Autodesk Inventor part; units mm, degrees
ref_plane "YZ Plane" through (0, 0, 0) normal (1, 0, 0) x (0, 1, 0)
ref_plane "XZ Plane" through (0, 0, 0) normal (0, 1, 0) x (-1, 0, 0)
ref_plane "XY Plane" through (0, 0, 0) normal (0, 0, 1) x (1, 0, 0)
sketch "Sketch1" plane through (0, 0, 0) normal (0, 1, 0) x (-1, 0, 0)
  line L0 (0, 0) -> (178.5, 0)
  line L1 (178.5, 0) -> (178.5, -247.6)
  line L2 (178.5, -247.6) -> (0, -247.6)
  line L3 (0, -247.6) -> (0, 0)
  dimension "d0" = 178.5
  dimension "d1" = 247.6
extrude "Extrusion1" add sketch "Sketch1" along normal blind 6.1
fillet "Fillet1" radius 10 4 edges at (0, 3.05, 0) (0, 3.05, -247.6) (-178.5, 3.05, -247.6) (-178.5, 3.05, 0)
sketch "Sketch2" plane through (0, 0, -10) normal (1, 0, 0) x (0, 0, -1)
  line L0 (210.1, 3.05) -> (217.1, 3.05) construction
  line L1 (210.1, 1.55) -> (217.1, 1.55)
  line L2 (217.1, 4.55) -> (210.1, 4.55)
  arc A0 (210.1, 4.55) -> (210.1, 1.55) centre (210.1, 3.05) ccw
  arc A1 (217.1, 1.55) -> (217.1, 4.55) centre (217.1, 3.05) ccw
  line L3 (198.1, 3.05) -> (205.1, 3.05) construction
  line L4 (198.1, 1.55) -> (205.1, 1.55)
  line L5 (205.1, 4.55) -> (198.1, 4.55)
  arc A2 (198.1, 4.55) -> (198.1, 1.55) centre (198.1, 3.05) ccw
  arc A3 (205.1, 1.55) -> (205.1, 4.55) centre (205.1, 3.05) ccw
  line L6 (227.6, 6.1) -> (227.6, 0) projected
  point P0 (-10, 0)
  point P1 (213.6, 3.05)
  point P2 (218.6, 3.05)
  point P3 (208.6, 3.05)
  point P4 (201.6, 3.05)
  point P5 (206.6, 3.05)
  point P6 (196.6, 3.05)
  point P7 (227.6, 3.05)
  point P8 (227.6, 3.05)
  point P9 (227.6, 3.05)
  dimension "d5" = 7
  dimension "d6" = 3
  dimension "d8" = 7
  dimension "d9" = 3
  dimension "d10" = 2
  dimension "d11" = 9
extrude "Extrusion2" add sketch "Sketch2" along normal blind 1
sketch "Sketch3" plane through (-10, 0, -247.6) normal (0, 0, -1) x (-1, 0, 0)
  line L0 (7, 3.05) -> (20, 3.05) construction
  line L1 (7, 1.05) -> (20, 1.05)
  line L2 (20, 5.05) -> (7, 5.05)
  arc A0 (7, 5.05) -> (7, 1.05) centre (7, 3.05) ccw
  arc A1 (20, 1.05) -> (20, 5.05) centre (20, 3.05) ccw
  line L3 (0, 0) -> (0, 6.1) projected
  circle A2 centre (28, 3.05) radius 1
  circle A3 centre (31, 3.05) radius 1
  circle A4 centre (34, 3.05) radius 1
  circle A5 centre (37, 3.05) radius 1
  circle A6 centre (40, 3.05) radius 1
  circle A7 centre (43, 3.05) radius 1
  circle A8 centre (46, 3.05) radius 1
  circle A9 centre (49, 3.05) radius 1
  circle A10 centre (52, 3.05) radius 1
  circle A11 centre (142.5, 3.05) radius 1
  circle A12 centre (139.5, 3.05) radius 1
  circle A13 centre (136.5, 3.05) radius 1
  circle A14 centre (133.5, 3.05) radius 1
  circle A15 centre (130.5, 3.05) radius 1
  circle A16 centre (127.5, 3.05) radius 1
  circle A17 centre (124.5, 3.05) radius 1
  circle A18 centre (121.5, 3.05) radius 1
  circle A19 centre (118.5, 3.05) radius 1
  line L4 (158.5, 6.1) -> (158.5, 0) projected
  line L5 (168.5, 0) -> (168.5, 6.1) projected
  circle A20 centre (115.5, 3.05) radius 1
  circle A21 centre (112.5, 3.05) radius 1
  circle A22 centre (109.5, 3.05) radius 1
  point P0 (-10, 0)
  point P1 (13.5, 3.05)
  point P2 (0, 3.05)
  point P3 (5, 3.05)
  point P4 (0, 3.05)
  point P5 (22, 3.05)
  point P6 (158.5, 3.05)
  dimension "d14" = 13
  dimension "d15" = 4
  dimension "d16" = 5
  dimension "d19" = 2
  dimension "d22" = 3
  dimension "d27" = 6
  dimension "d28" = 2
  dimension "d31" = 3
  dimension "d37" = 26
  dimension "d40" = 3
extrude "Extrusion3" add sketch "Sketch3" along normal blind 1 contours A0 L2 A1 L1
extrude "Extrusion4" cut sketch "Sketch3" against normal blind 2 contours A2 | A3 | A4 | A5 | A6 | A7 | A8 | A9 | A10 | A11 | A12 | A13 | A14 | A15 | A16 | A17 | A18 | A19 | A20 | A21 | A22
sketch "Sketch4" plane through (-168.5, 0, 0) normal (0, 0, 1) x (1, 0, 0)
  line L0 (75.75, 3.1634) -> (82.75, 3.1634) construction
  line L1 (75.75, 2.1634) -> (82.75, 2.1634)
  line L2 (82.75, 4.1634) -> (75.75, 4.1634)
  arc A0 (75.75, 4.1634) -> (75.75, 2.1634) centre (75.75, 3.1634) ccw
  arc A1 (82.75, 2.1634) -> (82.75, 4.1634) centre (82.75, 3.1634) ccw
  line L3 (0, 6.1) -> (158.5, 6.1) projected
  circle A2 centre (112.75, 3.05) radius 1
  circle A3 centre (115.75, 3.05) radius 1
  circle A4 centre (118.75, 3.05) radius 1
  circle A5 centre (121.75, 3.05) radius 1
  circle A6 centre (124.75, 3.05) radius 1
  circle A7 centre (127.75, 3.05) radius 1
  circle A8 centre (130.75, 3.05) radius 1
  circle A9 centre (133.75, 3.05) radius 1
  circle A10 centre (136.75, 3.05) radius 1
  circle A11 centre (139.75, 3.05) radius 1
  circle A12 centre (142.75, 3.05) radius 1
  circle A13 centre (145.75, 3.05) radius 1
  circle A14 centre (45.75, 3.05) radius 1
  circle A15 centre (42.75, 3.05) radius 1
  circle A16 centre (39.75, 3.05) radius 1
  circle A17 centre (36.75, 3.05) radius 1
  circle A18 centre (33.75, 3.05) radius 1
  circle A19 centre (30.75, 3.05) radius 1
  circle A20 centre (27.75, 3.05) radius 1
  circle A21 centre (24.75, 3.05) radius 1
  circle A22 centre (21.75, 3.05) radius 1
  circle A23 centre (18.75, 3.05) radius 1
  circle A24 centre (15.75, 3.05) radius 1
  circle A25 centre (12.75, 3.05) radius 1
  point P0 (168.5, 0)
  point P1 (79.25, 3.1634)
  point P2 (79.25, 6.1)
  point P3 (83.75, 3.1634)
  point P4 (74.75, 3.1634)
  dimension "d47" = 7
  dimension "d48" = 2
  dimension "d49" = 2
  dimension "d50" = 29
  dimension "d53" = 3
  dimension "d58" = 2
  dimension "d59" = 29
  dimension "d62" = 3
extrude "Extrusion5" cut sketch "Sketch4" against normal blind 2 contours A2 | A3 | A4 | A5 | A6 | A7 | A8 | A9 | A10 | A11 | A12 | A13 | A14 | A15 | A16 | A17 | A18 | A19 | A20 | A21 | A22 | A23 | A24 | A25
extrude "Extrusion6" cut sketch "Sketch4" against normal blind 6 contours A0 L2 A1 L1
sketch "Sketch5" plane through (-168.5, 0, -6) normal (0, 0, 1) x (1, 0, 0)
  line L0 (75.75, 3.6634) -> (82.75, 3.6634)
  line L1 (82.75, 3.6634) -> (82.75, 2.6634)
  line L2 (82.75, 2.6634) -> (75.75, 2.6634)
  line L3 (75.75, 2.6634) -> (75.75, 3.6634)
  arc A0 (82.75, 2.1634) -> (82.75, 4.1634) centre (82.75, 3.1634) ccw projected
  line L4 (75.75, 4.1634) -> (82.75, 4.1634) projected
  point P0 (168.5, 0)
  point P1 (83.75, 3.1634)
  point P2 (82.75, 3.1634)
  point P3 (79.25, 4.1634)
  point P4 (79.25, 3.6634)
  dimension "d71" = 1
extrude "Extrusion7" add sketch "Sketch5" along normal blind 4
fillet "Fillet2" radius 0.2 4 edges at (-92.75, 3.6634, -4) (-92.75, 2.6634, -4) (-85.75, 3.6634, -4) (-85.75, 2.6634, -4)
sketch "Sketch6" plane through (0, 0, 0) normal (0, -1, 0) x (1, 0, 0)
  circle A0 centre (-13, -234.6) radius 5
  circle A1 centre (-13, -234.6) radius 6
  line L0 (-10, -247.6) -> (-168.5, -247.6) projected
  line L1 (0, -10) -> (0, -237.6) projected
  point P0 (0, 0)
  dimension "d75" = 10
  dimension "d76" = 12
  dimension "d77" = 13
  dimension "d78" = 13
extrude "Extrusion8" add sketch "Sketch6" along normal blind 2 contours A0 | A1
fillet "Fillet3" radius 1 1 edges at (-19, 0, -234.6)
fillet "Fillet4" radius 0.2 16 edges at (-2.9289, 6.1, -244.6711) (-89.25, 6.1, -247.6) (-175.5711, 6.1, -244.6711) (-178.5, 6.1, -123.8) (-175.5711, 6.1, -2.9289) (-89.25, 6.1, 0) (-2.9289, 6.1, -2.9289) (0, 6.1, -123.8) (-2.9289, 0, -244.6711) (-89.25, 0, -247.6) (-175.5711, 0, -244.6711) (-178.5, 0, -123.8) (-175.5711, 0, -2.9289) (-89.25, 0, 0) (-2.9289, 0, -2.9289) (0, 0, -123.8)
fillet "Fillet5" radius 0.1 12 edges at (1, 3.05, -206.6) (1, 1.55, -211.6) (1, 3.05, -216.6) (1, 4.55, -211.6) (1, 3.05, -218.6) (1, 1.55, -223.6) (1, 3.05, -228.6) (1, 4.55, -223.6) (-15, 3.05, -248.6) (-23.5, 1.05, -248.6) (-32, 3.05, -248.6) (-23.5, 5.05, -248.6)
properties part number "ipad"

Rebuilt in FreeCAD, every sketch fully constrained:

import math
import FreeCAD as App
import Part
import Sketcher
Q = App.Units.Quantity


def edges_at(feature, points):
    """Names of the edges that pass closest to the given points."""
    edges = feature.Shape.Edges
    near = lambda p: min(range(len(edges)), key=lambda i: edges[i].distToShape(Part.Vertex(*p))[0])
    return sorted({f"Edge{near(p) + 1}" for p in points})


def add_polygon(sketch, points):
    """Adds a closed chain of lines whose ends are joined by coincident constraints."""
    first, n = sketch.GeometryCount, len(points)
    for a, b in zip(points, points[1:] + points[:1]):
        sketch.addGeometry(Part.LineSegment(App.Vector(*a, 0), App.Vector(*b, 0)), False)
    for i in range(n):
        sketch.addConstraint(Sketcher.Constraint("Coincident", first + i, 2, first + (i + 1) % n, 1))

doc = App.newDocument("Part")
params = doc.addObject("Spreadsheet::Sheet", "Params")
for row, (alias, value) in enumerate([
    ("sketch1_width", "178.5 mm"),
    ("sketch1_height", "247.6 mm"),
    ("pad1_length", "6.1 mm"),
    ("fillet_radius", "10 mm"),
    ("sketch2_radius", "1.5 mm"),
    ("sketch2_height", "7 mm"),
    ("pad2_length", "1 mm"),
    ("sketch3_radius", "2 mm"),
    ("sketch3_width", "13 mm"),
    ("pad3_length", "1 mm"),
    ("sketch4_diameter", "2 mm"),
    ("pocket1_length", "2 mm"),
    ("sketch5_diameter", "2 mm"),
    ("pocket2_length", "2 mm"),
    ("sketch6_radius", "1 mm"),
    ("sketch6_width", "7 mm"),
    ("pocket3_length", "6 mm"),
    ("sketch7_height", "1 mm"),
    ("sketch7_width", "7 mm"),
    ("pad4_length", "4 mm"),
    ("fillet2_radius", "0.2 mm"),
    ("sketch8_diameter", "12 mm"),
    ("pad5_length", "2 mm"),
    ("fillet3_radius", "1 mm"),
    ("fillet4_radius", "0.2 mm"),
    ("fillet5_radius", "0.1 mm"),
], start=1):
    params.set(f"A{row}", alias)
    params.set(f"B{row}", "=" + value)
    params.setAlias(f"B{row}", alias)

body = doc.addObject("PartDesign::Body", "Body")

# Sketch on XZ plane
sketch1 = doc.addObject("Sketcher::SketchObject", "Sketch")
body.addObject(sketch1)
sketch1.AttachmentSupport = (doc.XZ_Plane, [""])
sketch1.MapMode = "FlatFace"
add_polygon(sketch1, [(-178.5, 0), (0, 0), (0, -247.6), (-178.5, -247.6)])  # lines 0-3
sketch1.addConstraint(Sketcher.Constraint("Horizontal", 0))
sketch1.addConstraint(Sketcher.Constraint("Vertical", 1))
sketch1.addConstraint(Sketcher.Constraint("Horizontal", 2))
sketch1.addConstraint(Sketcher.Constraint("Vertical", 3))
sketch1.addConstraint(Sketcher.Constraint("Coincident", 0, 2, -1, 1))
sketch1.addConstraint(Sketcher.Constraint("DistanceX", 0, 1, 0, 2, Q("178.5 mm")))
sketch1.addConstraint(Sketcher.Constraint("DistanceY", 1, 2, 1, 1, Q("247.6 mm")))
sketch1.setExpression("Constraints[9]", "Params.sketch1_width")
sketch1.setExpression("Constraints[10]", "Params.sketch1_height")
pad1 = doc.addObject("PartDesign::Pad", "Pad")
body.addObject(pad1)
pad1.Profile = sketch1
pad1.setExpression("Length", "Params.pad1_length")
pad1.Reversed = True
doc.recompute()

fillet = doc.addObject("PartDesign::Fillet", "Fillet")
body.addObject(fillet)
fillet.Base = (pad1, edges_at(pad1, [
    (0, 3.05, 0),
    (0, 3.05, -247.6),
    (-178.5, 3.05, -247.6),
    (-178.5, 3.05, 0),
]))
fillet.setExpression("Radius", "Params.fillet_radius")

# Sketch on YZ plane
sketch2 = doc.addObject("Sketcher::SketchObject", "Sketch001")
body.addObject(sketch2)
sketch2.AttachmentSupport = (doc.YZ_Plane, [""])
sketch2.MapMode = "FlatFace"
sketch2.addGeometry(Part.ArcOfCircle(Part.Circle(App.Vector(3.05, -220.1, 0), App.Vector(0, 0, 1), 1.5), math.radians(0), math.radians(180)), False)
sketch2.addGeometry(Part.LineSegment(App.Vector(1.55, -220.1, 0), App.Vector(1.55, -227.1, 0)), False)
sketch2.addGeometry(Part.ArcOfCircle(Part.Circle(App.Vector(3.05, -227.1, 0), App.Vector(0, 0, 1), 1.5), math.radians(180), math.radians(360)), False)
sketch2.addGeometry(Part.LineSegment(App.Vector(4.55, -227.1, 0), App.Vector(4.55, -220.1, 0)), False)
sketch2.addGeometry(Part.ArcOfCircle(Part.Circle(App.Vector(3.05, -208.1, 0), App.Vector(0, 0, 1), 1.5), math.radians(0), math.radians(180)), False)
sketch2.addGeometry(Part.LineSegment(App.Vector(1.55, -208.1, 0), App.Vector(1.55, -215.1, 0)), False)
sketch2.addGeometry(Part.ArcOfCircle(Part.Circle(App.Vector(3.05, -215.1, 0), App.Vector(0, 0, 1), 1.5), math.radians(180), math.radians(360)), False)
sketch2.addGeometry(Part.LineSegment(App.Vector(4.55, -215.1, 0), App.Vector(4.55, -208.1, 0)), False)
sketch2.addConstraint(Sketcher.Constraint("Tangent", 0, 2, 1, 1))
sketch2.addConstraint(Sketcher.Constraint("Tangent", 1, 2, 2, 1))
sketch2.addConstraint(Sketcher.Constraint("Tangent", 2, 2, 3, 1))
sketch2.addConstraint(Sketcher.Constraint("Tangent", 3, 2, 0, 1))
sketch2.addConstraint(Sketcher.Constraint("Tangent", 4, 2, 5, 1))
sketch2.addConstraint(Sketcher.Constraint("Tangent", 5, 2, 6, 1))
sketch2.addConstraint(Sketcher.Constraint("Tangent", 6, 2, 7, 1))
sketch2.addConstraint(Sketcher.Constraint("Tangent", 7, 2, 4, 1))
sketch2.addConstraint(Sketcher.Constraint("Vertical", 1))
sketch2.addConstraint(Sketcher.Constraint("Vertical", 3))
sketch2.addConstraint(Sketcher.Constraint("Vertical", 5))
sketch2.addConstraint(Sketcher.Constraint("Vertical", 7))
sketch2.addConstraint(Sketcher.Constraint("Equal", 2, 4))
sketch2.addConstraint(Sketcher.Constraint("Vertical", 2, 3, 4, 3))
sketch2.addConstraint(Sketcher.Constraint("Equal", 3, 5))
sketch2.addConstraint(Sketcher.Constraint("Radius", 0, Q("1.5 mm")))
sketch2.addConstraint(Sketcher.Constraint("DistanceY", 1, 2, 1, 1, Q("7 mm")))
sketch2.addConstraint(Sketcher.Constraint("DistanceY", 0, 3, 4, 3, Q("12 mm")))
sketch2.addConstraint(Sketcher.Constraint("DistanceY", 0, 3, -1, 1, Q("220.1 mm")))
sketch2.addConstraint(Sketcher.Constraint("DistanceX", -1, 1, 0, 3, Q("3.05 mm")))
sketch2.setExpression("Constraints[15]", "Params.sketch2_radius")
sketch2.setExpression("Constraints[16]", "Params.sketch2_height")
pad2 = doc.addObject("PartDesign::Pad", "Pad001")
body.addObject(pad2)
pad2.Profile = sketch2
pad2.setExpression("Length", "Params.pad2_length")

# Sketch on XY plane
sketch3 = doc.addObject("Sketcher::SketchObject", "Sketch002")
body.addObject(sketch3)
sketch3.AttachmentSupport = (doc.XY_Plane, [""])
sketch3.MapMode = "FlatFace"
sketch3.AttachmentOffset = App.Placement(App.Vector(0, 0, -247.6), App.Rotation())
sketch3.addGeometry(Part.ArcOfCircle(Part.Circle(App.Vector(-17, 3.05, 0), App.Vector(0, 0, 1), 2), math.radians(-90), math.radians(90)), False)
sketch3.addGeometry(Part.LineSegment(App.Vector(-17, 1.05, 0), App.Vector(-30, 1.05, 0)), False)
sketch3.addGeometry(Part.ArcOfCircle(Part.Circle(App.Vector(-30, 3.05, 0), App.Vector(0, 0, 1), 2), math.radians(90), math.radians(270)), False)
sketch3.addGeometry(Part.LineSegment(App.Vector(-30, 5.05, 0), App.Vector(-17, 5.05, 0)), False)
sketch3.addConstraint(Sketcher.Constraint("Tangent", 0, 1, 1, 1))
sketch3.addConstraint(Sketcher.Constraint("Tangent", 1, 2, 2, 2))
sketch3.addConstraint(Sketcher.Constraint("Tangent", 2, 1, 3, 1))
sketch3.addConstraint(Sketcher.Constraint("Tangent", 3, 2, 0, 2))
sketch3.addConstraint(Sketcher.Constraint("Horizontal", 1))
sketch3.addConstraint(Sketcher.Constraint("Horizontal", 3))
sketch3.addConstraint(Sketcher.Constraint("Radius", 0, Q("2 mm")))
sketch3.addConstraint(Sketcher.Constraint("DistanceX", 1, 2, 1, 1, Q("13 mm")))
sketch3.addConstraint(Sketcher.Constraint("DistanceX", 0, 3, -1, 1, Q("17 mm")))
sketch3.addConstraint(Sketcher.Constraint("DistanceY", -1, 1, 0, 3, Q("3.05 mm")))
sketch3.setExpression("Constraints[6]", "Params.sketch3_radius")
sketch3.setExpression("Constraints[7]", "Params.sketch3_width")
pad3 = doc.addObject("PartDesign::Pad", "Pad002")
body.addObject(pad3)
pad3.Profile = sketch3
pad3.setExpression("Length", "Params.pad3_length")
pad3.Reversed = True

# Sketch on XY plane
sketch4 = doc.addObject("Sketcher::SketchObject", "Sketch003")
body.addObject(sketch4)
sketch4.AttachmentSupport = (doc.XY_Plane, [""])
sketch4.MapMode = "FlatFace"
sketch4.AttachmentOffset = App.Placement(App.Vector(0, 0, -247.6), App.Rotation())
sketch4.addGeometry(Part.Circle(App.Vector(-38, 3.05, 0), App.Vector(0, 0, 1), 1), False)
sketch4.addGeometry(Part.Circle(App.Vector(-41, 3.05, 0), App.Vector(0, 0, 1), 1), False)
sketch4.addGeometry(Part.Circle(App.Vector(-44, 3.05, 0), App.Vector(0, 0, 1), 1), False)
sketch4.addGeometry(Part.Circle(App.Vector(-47, 3.05, 0), App.Vector(0, 0, 1), 1), False)
sketch4.addGeometry(Part.Circle(App.Vector(-50, 3.05, 0), App.Vector(0, 0, 1), 1), False)
sketch4.addGeometry(Part.Circle(App.Vector(-53, 3.05, 0), App.Vector(0, 0, 1), 1), False)
sketch4.addGeometry(Part.Circle(App.Vector(-56, 3.05, 0), App.Vector(0, 0, 1), 1), False)
sketch4.addGeometry(Part.Circle(App.Vector(-59, 3.05, 0), App.Vector(0, 0, 1), 1), False)
sketch4.addGeometry(Part.Circle(App.Vector(-62, 3.05, 0), App.Vector(0, 0, 1), 1), False)
sketch4.addGeometry(Part.Circle(App.Vector(-152.5, 3.05, 0), App.Vector(0, 0, 1), 1), False)
sketch4.addGeometry(Part.Circle(App.Vector(-149.5, 3.05, 0), App.Vector(0, 0, 1), 1), False)
sketch4.addGeometry(Part.Circle(App.Vector(-146.5, 3.05, 0), App.Vector(0, 0, 1), 1), False)
sketch4.addGeometry(Part.Circle(App.Vector(-143.5, 3.05, 0), App.Vector(0, 0, 1), 1), False)
sketch4.addGeometry(Part.Circle(App.Vector(-140.5, 3.05, 0), App.Vector(0, 0, 1), 1), False)
sketch4.addGeometry(Part.Circle(App.Vector(-137.5, 3.05, 0), App.Vector(0, 0, 1), 1), False)
sketch4.addGeometry(Part.Circle(App.Vector(-134.5, 3.05, 0), App.Vector(0, 0, 1), 1), False)
sketch4.addGeometry(Part.Circle(App.Vector(-131.5, 3.05, 0), App.Vector(0, 0, 1), 1), False)
sketch4.addGeometry(Part.Circle(App.Vector(-128.5, 3.05, 0), App.Vector(0, 0, 1), 1), False)
sketch4.addGeometry(Part.Circle(App.Vector(-125.5, 3.05, 0), App.Vector(0, 0, 1), 1), False)
sketch4.addGeometry(Part.Circle(App.Vector(-122.5, 3.05, 0), App.Vector(0, 0, 1), 1), False)
sketch4.addGeometry(Part.Circle(App.Vector(-119.5, 3.05, 0), App.Vector(0, 0, 1), 1), False)
sketch4.addConstraint(Sketcher.Constraint("Equal", 0, 1))
sketch4.addConstraint(Sketcher.Constraint("Equal", 1, 2))
sketch4.addConstraint(Sketcher.Constraint("Equal", 2, 3))
sketch4.addConstraint(Sketcher.Constraint("Equal", 3, 4))
sketch4.addConstraint(Sketcher.Constraint("Equal", 4, 5))
sketch4.addConstraint(Sketcher.Constraint("Equal", 5, 6))
sketch4.addConstraint(Sketcher.Constraint("Equal", 6, 7))
sketch4.addConstraint(Sketcher.Constraint("Equal", 7, 8))
sketch4.addConstraint(Sketcher.Constraint("Equal", 8, 9))
sketch4.addConstraint(Sketcher.Constraint("Equal", 9, 10))
sketch4.addConstraint(Sketcher.Constraint("Equal", 10, 11))
sketch4.addConstraint(Sketcher.Constraint("Equal", 11, 12))
sketch4.addConstraint(Sketcher.Constraint("Equal", 12, 13))
sketch4.addConstraint(Sketcher.Constraint("Equal", 13, 14))
sketch4.addConstraint(Sketcher.Constraint("Equal", 14, 15))
sketch4.addConstraint(Sketcher.Constraint("Equal", 15, 16))
sketch4.addConstraint(Sketcher.Constraint("Equal", 16, 17))
sketch4.addConstraint(Sketcher.Constraint("Equal", 17, 18))
sketch4.addConstraint(Sketcher.Constraint("Equal", 18, 19))
sketch4.addConstraint(Sketcher.Constraint("Equal", 19, 20))
sketch4.addConstraint(Sketcher.Constraint("Horizontal", 0, 3, 1, 3))
sketch4.addConstraint(Sketcher.Constraint("Horizontal", 1, 3, 2, 3))
sketch4.addConstraint(Sketcher.Constraint("Horizontal", 2, 3, 3, 3))
sketch4.addConstraint(Sketcher.Constraint("Horizontal", 3, 3, 4, 3))
sketch4.addConstraint(Sketcher.Constraint("Horizontal", 4, 3, 5, 3))
sketch4.addConstraint(Sketcher.Constraint("Horizontal", 5, 3, 6, 3))
sketch4.addConstraint(Sketcher.Constraint("Horizontal", 6, 3, 7, 3))
sketch4.addConstraint(Sketcher.Constraint("Horizontal", 7, 3, 8, 3))
sketch4.addConstraint(Sketcher.Constraint("Horizontal", 8, 3, 9, 3))
sketch4.addConstraint(Sketcher.Constraint("Horizontal", 9, 3, 10, 3))
sketch4.addConstraint(Sketcher.Constraint("Horizontal", 10, 3, 11, 3))
sketch4.addConstraint(Sketcher.Constraint("Horizontal", 11, 3, 12, 3))
sketch4.addConstraint(Sketcher.Constraint("Horizontal", 12, 3, 13, 3))
sketch4.addConstraint(Sketcher.Constraint("Horizontal", 13, 3, 14, 3))
sketch4.addConstraint(Sketcher.Constraint("Horizontal", 14, 3, 15, 3))
sketch4.addConstraint(Sketcher.Constraint("Horizontal", 15, 3, 16, 3))
sketch4.addConstraint(Sketcher.Constraint("Horizontal", 16, 3, 17, 3))
sketch4.addConstraint(Sketcher.Constraint("Horizontal", 17, 3, 18, 3))
sketch4.addConstraint(Sketcher.Constraint("Horizontal", 18, 3, 19, 3))
sketch4.addConstraint(Sketcher.Constraint("Horizontal", 19, 3, 20, 3))
sketch4.addConstraint(Sketcher.Constraint("Diameter", 0, Q("2 mm")))
sketch4.addConstraint(Sketcher.Constraint("DistanceX", 1, 3, 0, 3, Q("3 mm")))
sketch4.addConstraint(Sketcher.Constraint("DistanceX", 2, 3, 1, 3, Q("3 mm")))
sketch4.addConstraint(Sketcher.Constraint("DistanceX", 3, 3, 2, 3, Q("3 mm")))
sketch4.addConstraint(Sketcher.Constraint("DistanceX", 4, 3, 3, 3, Q("3 mm")))
sketch4.addConstraint(Sketcher.Constraint("DistanceX", 5, 3, 4, 3, Q("3 mm")))
sketch4.addConstraint(Sketcher.Constraint("DistanceX", 6, 3, 5, 3, Q("3 mm")))
sketch4.addConstraint(Sketcher.Constraint("DistanceX", 7, 3, 6, 3, Q("3 mm")))
sketch4.addConstraint(Sketcher.Constraint("DistanceX", 8, 3, 7, 3, Q("3 mm")))
sketch4.addConstraint(Sketcher.Constraint("DistanceX", 9, 3, 10, 3, Q("3 mm")))
sketch4.addConstraint(Sketcher.Constraint("DistanceX", 10, 3, 11, 3, Q("3 mm")))
sketch4.addConstraint(Sketcher.Constraint("DistanceX", 11, 3, 12, 3, Q("3 mm")))
sketch4.addConstraint(Sketcher.Constraint("DistanceX", 12, 3, 13, 3, Q("3 mm")))
sketch4.addConstraint(Sketcher.Constraint("DistanceX", 13, 3, 14, 3, Q("3 mm")))
sketch4.addConstraint(Sketcher.Constraint("DistanceX", 14, 3, 15, 3, Q("3 mm")))
sketch4.addConstraint(Sketcher.Constraint("DistanceX", 15, 3, 16, 3, Q("3 mm")))
sketch4.addConstraint(Sketcher.Constraint("DistanceX", 16, 3, 17, 3, Q("3 mm")))
sketch4.addConstraint(Sketcher.Constraint("DistanceX", 17, 3, 18, 3, Q("3 mm")))
sketch4.addConstraint(Sketcher.Constraint("DistanceX", 18, 3, 19, 3, Q("3 mm")))
sketch4.addConstraint(Sketcher.Constraint("DistanceX", 19, 3, 20, 3, Q("3 mm")))
sketch4.addConstraint(Sketcher.Constraint("DistanceX", 0, 3, -1, 1, Q("38 mm")))
sketch4.addConstraint(Sketcher.Constraint("DistanceX", 9, 3, -1, 1, Q("152.5 mm")))
sketch4.addConstraint(Sketcher.Constraint("DistanceY", -1, 1, 0, 3, Q("3.05 mm")))
sketch4.setExpression("Constraints[40]", "Params.sketch4_diameter")
pocket1 = doc.addObject("PartDesign::Pocket", "Pocket")
body.addObject(pocket1)
pocket1.Profile = sketch4
pocket1.setExpression("Length", "Params.pocket1_length")
pocket1.Reversed = True

# Sketch on XY plane
sketch5 = doc.addObject("Sketcher::SketchObject", "Sketch004")
body.addObject(sketch5)
sketch5.AttachmentSupport = (doc.XY_Plane, [""])
sketch5.MapMode = "FlatFace"
sketch5.addGeometry(Part.Circle(App.Vector(-55.75, 3.05, 0), App.Vector(0, 0, 1), 1), False)
sketch5.addGeometry(Part.Circle(App.Vector(-52.75, 3.05, 0), App.Vector(0, 0, 1), 1), False)
sketch5.addGeometry(Part.Circle(App.Vector(-49.75, 3.05, 0), App.Vector(0, 0, 1), 1), False)
sketch5.addGeometry(Part.Circle(App.Vector(-46.75, 3.05, 0), App.Vector(0, 0, 1), 1), False)
sketch5.addGeometry(Part.Circle(App.Vector(-43.75, 3.05, 0), App.Vector(0, 0, 1), 1), False)
sketch5.addGeometry(Part.Circle(App.Vector(-40.75, 3.05, 0), App.Vector(0, 0, 1), 1), False)
sketch5.addGeometry(Part.Circle(App.Vector(-37.75, 3.05, 0), App.Vector(0, 0, 1), 1), False)
sketch5.addGeometry(Part.Circle(App.Vector(-34.75, 3.05, 0), App.Vector(0, 0, 1), 1), False)
sketch5.addGeometry(Part.Circle(App.Vector(-31.75, 3.05, 0), App.Vector(0, 0, 1), 1), False)
sketch5.addGeometry(Part.Circle(App.Vector(-28.75, 3.05, 0), App.Vector(0, 0, 1), 1), False)
sketch5.addGeometry(Part.Circle(App.Vector(-25.75, 3.05, 0), App.Vector(0, 0, 1), 1), False)
sketch5.addGeometry(Part.Circle(App.Vector(-22.75, 3.05, 0), App.Vector(0, 0, 1), 1), False)
sketch5.addGeometry(Part.Circle(App.Vector(-122.75, 3.05, 0), App.Vector(0, 0, 1), 1), False)
sketch5.addGeometry(Part.Circle(App.Vector(-125.75, 3.05, 0), App.Vector(0, 0, 1), 1), False)
sketch5.addGeometry(Part.Circle(App.Vector(-128.75, 3.05, 0), App.Vector(0, 0, 1), 1), False)
sketch5.addGeometry(Part.Circle(App.Vector(-131.75, 3.05, 0), App.Vector(0, 0, 1), 1), False)
sketch5.addGeometry(Part.Circle(App.Vector(-134.75, 3.05, 0), App.Vector(0, 0, 1), 1), False)
sketch5.addGeometry(Part.Circle(App.Vector(-137.75, 3.05, 0), App.Vector(0, 0, 1), 1), False)
sketch5.addGeometry(Part.Circle(App.Vector(-140.75, 3.05, 0), App.Vector(0, 0, 1), 1), False)
sketch5.addGeometry(Part.Circle(App.Vector(-143.75, 3.05, 0), App.Vector(0, 0, 1), 1), False)
sketch5.addGeometry(Part.Circle(App.Vector(-146.75, 3.05, 0), App.Vector(0, 0, 1), 1), False)
sketch5.addGeometry(Part.Circle(App.Vector(-149.75, 3.05, 0), App.Vector(0, 0, 1), 1), False)
sketch5.addGeometry(Part.Circle(App.Vector(-152.75, 3.05, 0), App.Vector(0, 0, 1), 1), False)
sketch5.addGeometry(Part.Circle(App.Vector(-155.75, 3.05, 0), App.Vector(0, 0, 1), 1), False)
sketch5.addConstraint(Sketcher.Constraint("Equal", 0, 1))
sketch5.addConstraint(Sketcher.Constraint("Equal", 1, 2))
sketch5.addConstraint(Sketcher.Constraint("Equal", 2, 3))
sketch5.addConstraint(Sketcher.Constraint("Equal", 3, 4))
sketch5.addConstraint(Sketcher.Constraint("Equal", 4, 5))
sketch5.addConstraint(Sketcher.Constraint("Equal", 5, 6))
sketch5.addConstraint(Sketcher.Constraint("Equal", 6, 7))
sketch5.addConstraint(Sketcher.Constraint("Equal", 7, 8))
sketch5.addConstraint(Sketcher.Constraint("Equal", 8, 9))
sketch5.addConstraint(Sketcher.Constraint("Equal", 9, 10))
sketch5.addConstraint(Sketcher.Constraint("Equal", 10, 11))
sketch5.addConstraint(Sketcher.Constraint("Equal", 11, 12))
sketch5.addConstraint(Sketcher.Constraint("Equal", 12, 13))
sketch5.addConstraint(Sketcher.Constraint("Equal", 13, 14))
sketch5.addConstraint(Sketcher.Constraint("Equal", 14, 15))
sketch5.addConstraint(Sketcher.Constraint("Equal", 15, 16))
sketch5.addConstraint(Sketcher.Constraint("Equal", 16, 17))
sketch5.addConstraint(Sketcher.Constraint("Equal", 17, 18))
sketch5.addConstraint(Sketcher.Constraint("Equal", 18, 19))
sketch5.addConstraint(Sketcher.Constraint("Equal", 19, 20))
sketch5.addConstraint(Sketcher.Constraint("Equal", 20, 21))
sketch5.addConstraint(Sketcher.Constraint("Equal", 21, 22))
sketch5.addConstraint(Sketcher.Constraint("Equal", 22, 23))
sketch5.addConstraint(Sketcher.Constraint("Horizontal", 0, 3, 1, 3))
sketch5.addConstraint(Sketcher.Constraint("Horizontal", 1, 3, 2, 3))
sketch5.addConstraint(Sketcher.Constraint("Horizontal", 2, 3, 3, 3))
sketch5.addConstraint(Sketcher.Constraint("Horizontal", 3, 3, 4, 3))
sketch5.addConstraint(Sketcher.Constraint("Horizontal", 4, 3, 5, 3))
sketch5.addConstraint(Sketcher.Constraint("Horizontal", 5, 3, 6, 3))
sketch5.addConstraint(Sketcher.Constraint("Horizontal", 6, 3, 7, 3))
sketch5.addConstraint(Sketcher.Constraint("Horizontal", 7, 3, 8, 3))
sketch5.addConstraint(Sketcher.Constraint("Horizontal", 8, 3, 9, 3))
sketch5.addConstraint(Sketcher.Constraint("Horizontal", 9, 3, 10, 3))
sketch5.addConstraint(Sketcher.Constraint("Horizontal", 10, 3, 11, 3))
sketch5.addConstraint(Sketcher.Constraint("Horizontal", 11, 3, 12, 3))
sketch5.addConstraint(Sketcher.Constraint("Horizontal", 12, 3, 13, 3))
sketch5.addConstraint(Sketcher.Constraint("Horizontal", 13, 3, 14, 3))
sketch5.addConstraint(Sketcher.Constraint("Horizontal", 14, 3, 15, 3))
sketch5.addConstraint(Sketcher.Constraint("Horizontal", 15, 3, 16, 3))
sketch5.addConstraint(Sketcher.Constraint("Horizontal", 16, 3, 17, 3))
sketch5.addConstraint(Sketcher.Constraint("Horizontal", 17, 3, 18, 3))
sketch5.addConstraint(Sketcher.Constraint("Horizontal", 18, 3, 19, 3))
sketch5.addConstraint(Sketcher.Constraint("Horizontal", 19, 3, 20, 3))
sketch5.addConstraint(Sketcher.Constraint("Horizontal", 20, 3, 21, 3))
sketch5.addConstraint(Sketcher.Constraint("Horizontal", 21, 3, 22, 3))
sketch5.addConstraint(Sketcher.Constraint("Horizontal", 22, 3, 23, 3))
sketch5.addConstraint(Sketcher.Constraint("Diameter", 0, Q("2 mm")))
sketch5.addConstraint(Sketcher.Constraint("DistanceX", 0, 3, 1, 3, Q("3 mm")))
sketch5.addConstraint(Sketcher.Constraint("DistanceX", 1, 3, 2, 3, Q("3 mm")))
sketch5.addConstraint(Sketcher.Constraint("DistanceX", 2, 3, 3, 3, Q("3 mm")))
sketch5.addConstraint(Sketcher.Constraint("DistanceX", 3, 3, 4, 3, Q("3 mm")))
sketch5.addConstraint(Sketcher.Constraint("DistanceX", 4, 3, 5, 3, Q("3 mm")))
sketch5.addConstraint(Sketcher.Constraint("DistanceX", 5, 3, 6, 3, Q("3 mm")))
sketch5.addConstraint(Sketcher.Constraint("DistanceX", 6, 3, 7, 3, Q("3 mm")))
sketch5.addConstraint(Sketcher.Constraint("DistanceX", 7, 3, 8, 3, Q("3 mm")))
sketch5.addConstraint(Sketcher.Constraint("DistanceX", 8, 3, 9, 3, Q("3 mm")))
sketch5.addConstraint(Sketcher.Constraint("DistanceX", 9, 3, 10, 3, Q("3 mm")))
sketch5.addConstraint(Sketcher.Constraint("DistanceX", 10, 3, 11, 3, Q("3 mm")))
sketch5.addConstraint(Sketcher.Constraint("DistanceX", 13, 3, 12, 3, Q("3 mm")))
sketch5.addConstraint(Sketcher.Constraint("DistanceX", 14, 3, 13, 3, Q("3 mm")))
sketch5.addConstraint(Sketcher.Constraint("DistanceX", 15, 3, 14, 3, Q("3 mm")))
sketch5.addConstraint(Sketcher.Constraint("DistanceX", 16, 3, 15, 3, Q("3 mm")))
sketch5.addConstraint(Sketcher.Constraint("DistanceX", 17, 3, 16, 3, Q("3 mm")))
sketch5.addConstraint(Sketcher.Constraint("DistanceX", 18, 3, 17, 3, Q("3 mm")))
sketch5.addConstraint(Sketcher.Constraint("DistanceX", 19, 3, 18, 3, Q("3 mm")))
sketch5.addConstraint(Sketcher.Constraint("DistanceX", 20, 3, 19, 3, Q("3 mm")))
sketch5.addConstraint(Sketcher.Constraint("DistanceX", 21, 3, 20, 3, Q("3 mm")))
sketch5.addConstraint(Sketcher.Constraint("DistanceX", 22, 3, 21, 3, Q("3 mm")))
sketch5.addConstraint(Sketcher.Constraint("DistanceX", 23, 3, 22, 3, Q("3 mm")))
sketch5.addConstraint(Sketcher.Constraint("DistanceX", 12, 3, 0, 3, Q("67 mm")))
sketch5.addConstraint(Sketcher.Constraint("DistanceX", 0, 3, -1, 1, Q("55.75 mm")))
sketch5.addConstraint(Sketcher.Constraint("DistanceY", -1, 1, 0, 3, Q("3.05 mm")))
sketch5.setExpression("Constraints[46]", "Params.sketch5_diameter")
pocket2 = doc.addObject("PartDesign::Pocket", "Pocket001")
body.addObject(pocket2)
pocket2.Profile = sketch5
pocket2.setExpression("Length", "Params.pocket2_length")

# Sketch on XY plane
sketch6 = doc.addObject("Sketcher::SketchObject", "Sketch005")
body.addObject(sketch6)
sketch6.AttachmentSupport = (doc.XY_Plane, [""])
sketch6.MapMode = "FlatFace"
sketch6.addGeometry(Part.ArcOfCircle(Part.Circle(App.Vector(-92.75, 3.1634, 0), App.Vector(0, 0, 1), 1), math.radians(90), math.radians(270)), False)
sketch6.addGeometry(Part.LineSegment(App.Vector(-92.75, 2.1634, 0), App.Vector(-85.75, 2.1634, 0)), False)
sketch6.addGeometry(Part.ArcOfCircle(Part.Circle(App.Vector(-85.75, 3.1634, 0), App.Vector(0, 0, 1), 1), math.radians(-90), math.radians(90)), False)
sketch6.addGeometry(Part.LineSegment(App.Vector(-85.75, 4.1634, 0), App.Vector(-92.75, 4.1634, 0)), False)
sketch6.addConstraint(Sketcher.Constraint("Tangent", 0, 2, 1, 1))
sketch6.addConstraint(Sketcher.Constraint("Tangent", 1, 2, 2, 1))
sketch6.addConstraint(Sketcher.Constraint("Tangent", 2, 2, 3, 1))
sketch6.addConstraint(Sketcher.Constraint("Tangent", 3, 2, 0, 1))
sketch6.addConstraint(Sketcher.Constraint("Horizontal", 1))
sketch6.addConstraint(Sketcher.Constraint("Horizontal", 3))
sketch6.addConstraint(Sketcher.Constraint("Radius", 0, Q("1 mm")))
sketch6.addConstraint(Sketcher.Constraint("DistanceX", 1, 1, 1, 2, Q("7 mm")))
sketch6.addConstraint(Sketcher.Constraint("DistanceX", 0, 3, -1, 1, Q("92.75 mm")))
sketch6.addConstraint(Sketcher.Constraint("DistanceY", -1, 1, 0, 3, Q("3.1634 mm")))
sketch6.setExpression("Constraints[6]", "Params.sketch6_radius")
sketch6.setExpression("Constraints[7]", "Params.sketch6_width")
pocket3 = doc.addObject("PartDesign::Pocket", "Pocket002")
body.addObject(pocket3)
pocket3.Profile = sketch6
pocket3.setExpression("Length", "Params.pocket3_length")

# Sketch on XY plane
sketch7 = doc.addObject("Sketcher::SketchObject", "Sketch006")
body.addObject(sketch7)
sketch7.AttachmentSupport = (doc.XY_Plane, [""])
sketch7.MapMode = "FlatFace"
sketch7.AttachmentOffset = App.Placement(App.Vector(0, 0, -6), App.Rotation())
add_polygon(sketch7, [(-85.75, 3.6634), (-92.75, 3.6634), (-92.75, 2.6634), (-85.75, 2.6634)])  # lines 0-3
sketch7.addConstraint(Sketcher.Constraint("Horizontal", 0))
sketch7.addConstraint(Sketcher.Constraint("Vertical", 1))
sketch7.addConstraint(Sketcher.Constraint("Horizontal", 2))
sketch7.addConstraint(Sketcher.Constraint("Vertical", 3))
sketch7.addConstraint(Sketcher.Constraint("DistanceY", 1, 2, 1, 1, Q("1 mm")))
sketch7.addConstraint(Sketcher.Constraint("DistanceX", 0, 2, 0, 1, Q("7 mm")))
sketch7.addConstraint(Sketcher.Constraint("DistanceX", 0, 2, -1, 1, Q("92.75 mm")))
sketch7.addConstraint(Sketcher.Constraint("DistanceY", -1, 1, 0, 2, Q("3.6634 mm")))
sketch7.setExpression("Constraints[8]", "Params.sketch7_height")
sketch7.setExpression("Constraints[9]", "Params.sketch7_width")
pad4 = doc.addObject("PartDesign::Pad", "Pad003")
body.addObject(pad4)
pad4.Profile = sketch7
pad4.setExpression("Length", "Params.pad4_length")
doc.recompute()

fillet2 = doc.addObject("PartDesign::Fillet", "Fillet001")
body.addObject(fillet2)
fillet2.Base = (pad4, edges_at(pad4, [
    (-92.75, 3.663, -4),
    (-92.75, 2.663, -4),
    (-85.75, 3.663, -4),
    (-85.75, 2.663, -4),
]))
fillet2.setExpression("Radius", "Params.fillet2_radius")

# Sketch on XZ plane
sketch8 = doc.addObject("Sketcher::SketchObject", "Sketch007")
body.addObject(sketch8)
sketch8.AttachmentSupport = (doc.XZ_Plane, [""])
sketch8.MapMode = "FlatFace"
sketch8.addGeometry(Part.Circle(App.Vector(-13, -234.6, 0), App.Vector(0, 0, 1), 6), False)
sketch8.addConstraint(Sketcher.Constraint("Diameter", 0, Q("12 mm")))
sketch8.addConstraint(Sketcher.Constraint("DistanceX", 0, 3, -1, 1, Q("13 mm")))
sketch8.addConstraint(Sketcher.Constraint("DistanceY", 0, 3, -1, 1, Q("234.6 mm")))
sketch8.setExpression("Constraints[0]", "Params.sketch8_diameter")
pad5 = doc.addObject("PartDesign::Pad", "Pad004")
body.addObject(pad5)
pad5.Profile = sketch8
pad5.setExpression("Length", "Params.pad5_length")
doc.recompute()

fillet3 = doc.addObject("PartDesign::Fillet", "Fillet002")
body.addObject(fillet3)
fillet3.Base = (pad5, edges_at(pad5, [(-19, 0, -234.6)]))
fillet3.setExpression("Radius", "Params.fillet3_radius")
doc.recompute()

fillet4 = doc.addObject("PartDesign::Fillet", "Fillet003")
body.addObject(fillet4)
fillet4.Base = (fillet3, edges_at(fillet3, [
    (-2.929, 6.1, -244.671),
    (-89.25, 6.1, -247.6),
    (-175.571, 6.1, -244.671),
    (-178.5, 6.1, -123.8),
    (-175.571, 6.1, -2.929),
    (-89.25, 6.1, 0),
    (-2.929, 6.1, -2.929),
    (0, 6.1, -123.8),
    (-2.929, 0, -244.671),
    (-89.25, 0, -247.6),
    (-175.571, 0, -244.671),
    (-178.5, 0, -123.8),
    (-175.571, 0, -2.929),
    (-89.25, 0, 0),
    (-2.929, 0, -2.929),
    (0, 0, -123.8),
]))
fillet4.setExpression("Radius", "Params.fillet4_radius")
doc.recompute()

fillet5 = doc.addObject("PartDesign::Fillet", "Fillet004")
body.addObject(fillet5)
fillet5.Base = (fillet4, edges_at(fillet4, [
    (1, 3.05, -206.6),
    (1, 1.55, -211.6),
    (1, 3.05, -216.6),
    (1, 4.55, -211.6),
    (1, 3.05, -218.6),
    (1, 1.55, -223.6),
    (1, 3.05, -228.6),
    (1, 4.55, -223.6),
    (-15, 3.05, -248.6),
    (-23.5, 1.05, -248.6),
    (-32, 3.05, -248.6),
    (-23.5, 5.05, -248.6),
]))
fillet5.setExpression("Radius", "Params.fillet5_radius")

doc.recompute()
